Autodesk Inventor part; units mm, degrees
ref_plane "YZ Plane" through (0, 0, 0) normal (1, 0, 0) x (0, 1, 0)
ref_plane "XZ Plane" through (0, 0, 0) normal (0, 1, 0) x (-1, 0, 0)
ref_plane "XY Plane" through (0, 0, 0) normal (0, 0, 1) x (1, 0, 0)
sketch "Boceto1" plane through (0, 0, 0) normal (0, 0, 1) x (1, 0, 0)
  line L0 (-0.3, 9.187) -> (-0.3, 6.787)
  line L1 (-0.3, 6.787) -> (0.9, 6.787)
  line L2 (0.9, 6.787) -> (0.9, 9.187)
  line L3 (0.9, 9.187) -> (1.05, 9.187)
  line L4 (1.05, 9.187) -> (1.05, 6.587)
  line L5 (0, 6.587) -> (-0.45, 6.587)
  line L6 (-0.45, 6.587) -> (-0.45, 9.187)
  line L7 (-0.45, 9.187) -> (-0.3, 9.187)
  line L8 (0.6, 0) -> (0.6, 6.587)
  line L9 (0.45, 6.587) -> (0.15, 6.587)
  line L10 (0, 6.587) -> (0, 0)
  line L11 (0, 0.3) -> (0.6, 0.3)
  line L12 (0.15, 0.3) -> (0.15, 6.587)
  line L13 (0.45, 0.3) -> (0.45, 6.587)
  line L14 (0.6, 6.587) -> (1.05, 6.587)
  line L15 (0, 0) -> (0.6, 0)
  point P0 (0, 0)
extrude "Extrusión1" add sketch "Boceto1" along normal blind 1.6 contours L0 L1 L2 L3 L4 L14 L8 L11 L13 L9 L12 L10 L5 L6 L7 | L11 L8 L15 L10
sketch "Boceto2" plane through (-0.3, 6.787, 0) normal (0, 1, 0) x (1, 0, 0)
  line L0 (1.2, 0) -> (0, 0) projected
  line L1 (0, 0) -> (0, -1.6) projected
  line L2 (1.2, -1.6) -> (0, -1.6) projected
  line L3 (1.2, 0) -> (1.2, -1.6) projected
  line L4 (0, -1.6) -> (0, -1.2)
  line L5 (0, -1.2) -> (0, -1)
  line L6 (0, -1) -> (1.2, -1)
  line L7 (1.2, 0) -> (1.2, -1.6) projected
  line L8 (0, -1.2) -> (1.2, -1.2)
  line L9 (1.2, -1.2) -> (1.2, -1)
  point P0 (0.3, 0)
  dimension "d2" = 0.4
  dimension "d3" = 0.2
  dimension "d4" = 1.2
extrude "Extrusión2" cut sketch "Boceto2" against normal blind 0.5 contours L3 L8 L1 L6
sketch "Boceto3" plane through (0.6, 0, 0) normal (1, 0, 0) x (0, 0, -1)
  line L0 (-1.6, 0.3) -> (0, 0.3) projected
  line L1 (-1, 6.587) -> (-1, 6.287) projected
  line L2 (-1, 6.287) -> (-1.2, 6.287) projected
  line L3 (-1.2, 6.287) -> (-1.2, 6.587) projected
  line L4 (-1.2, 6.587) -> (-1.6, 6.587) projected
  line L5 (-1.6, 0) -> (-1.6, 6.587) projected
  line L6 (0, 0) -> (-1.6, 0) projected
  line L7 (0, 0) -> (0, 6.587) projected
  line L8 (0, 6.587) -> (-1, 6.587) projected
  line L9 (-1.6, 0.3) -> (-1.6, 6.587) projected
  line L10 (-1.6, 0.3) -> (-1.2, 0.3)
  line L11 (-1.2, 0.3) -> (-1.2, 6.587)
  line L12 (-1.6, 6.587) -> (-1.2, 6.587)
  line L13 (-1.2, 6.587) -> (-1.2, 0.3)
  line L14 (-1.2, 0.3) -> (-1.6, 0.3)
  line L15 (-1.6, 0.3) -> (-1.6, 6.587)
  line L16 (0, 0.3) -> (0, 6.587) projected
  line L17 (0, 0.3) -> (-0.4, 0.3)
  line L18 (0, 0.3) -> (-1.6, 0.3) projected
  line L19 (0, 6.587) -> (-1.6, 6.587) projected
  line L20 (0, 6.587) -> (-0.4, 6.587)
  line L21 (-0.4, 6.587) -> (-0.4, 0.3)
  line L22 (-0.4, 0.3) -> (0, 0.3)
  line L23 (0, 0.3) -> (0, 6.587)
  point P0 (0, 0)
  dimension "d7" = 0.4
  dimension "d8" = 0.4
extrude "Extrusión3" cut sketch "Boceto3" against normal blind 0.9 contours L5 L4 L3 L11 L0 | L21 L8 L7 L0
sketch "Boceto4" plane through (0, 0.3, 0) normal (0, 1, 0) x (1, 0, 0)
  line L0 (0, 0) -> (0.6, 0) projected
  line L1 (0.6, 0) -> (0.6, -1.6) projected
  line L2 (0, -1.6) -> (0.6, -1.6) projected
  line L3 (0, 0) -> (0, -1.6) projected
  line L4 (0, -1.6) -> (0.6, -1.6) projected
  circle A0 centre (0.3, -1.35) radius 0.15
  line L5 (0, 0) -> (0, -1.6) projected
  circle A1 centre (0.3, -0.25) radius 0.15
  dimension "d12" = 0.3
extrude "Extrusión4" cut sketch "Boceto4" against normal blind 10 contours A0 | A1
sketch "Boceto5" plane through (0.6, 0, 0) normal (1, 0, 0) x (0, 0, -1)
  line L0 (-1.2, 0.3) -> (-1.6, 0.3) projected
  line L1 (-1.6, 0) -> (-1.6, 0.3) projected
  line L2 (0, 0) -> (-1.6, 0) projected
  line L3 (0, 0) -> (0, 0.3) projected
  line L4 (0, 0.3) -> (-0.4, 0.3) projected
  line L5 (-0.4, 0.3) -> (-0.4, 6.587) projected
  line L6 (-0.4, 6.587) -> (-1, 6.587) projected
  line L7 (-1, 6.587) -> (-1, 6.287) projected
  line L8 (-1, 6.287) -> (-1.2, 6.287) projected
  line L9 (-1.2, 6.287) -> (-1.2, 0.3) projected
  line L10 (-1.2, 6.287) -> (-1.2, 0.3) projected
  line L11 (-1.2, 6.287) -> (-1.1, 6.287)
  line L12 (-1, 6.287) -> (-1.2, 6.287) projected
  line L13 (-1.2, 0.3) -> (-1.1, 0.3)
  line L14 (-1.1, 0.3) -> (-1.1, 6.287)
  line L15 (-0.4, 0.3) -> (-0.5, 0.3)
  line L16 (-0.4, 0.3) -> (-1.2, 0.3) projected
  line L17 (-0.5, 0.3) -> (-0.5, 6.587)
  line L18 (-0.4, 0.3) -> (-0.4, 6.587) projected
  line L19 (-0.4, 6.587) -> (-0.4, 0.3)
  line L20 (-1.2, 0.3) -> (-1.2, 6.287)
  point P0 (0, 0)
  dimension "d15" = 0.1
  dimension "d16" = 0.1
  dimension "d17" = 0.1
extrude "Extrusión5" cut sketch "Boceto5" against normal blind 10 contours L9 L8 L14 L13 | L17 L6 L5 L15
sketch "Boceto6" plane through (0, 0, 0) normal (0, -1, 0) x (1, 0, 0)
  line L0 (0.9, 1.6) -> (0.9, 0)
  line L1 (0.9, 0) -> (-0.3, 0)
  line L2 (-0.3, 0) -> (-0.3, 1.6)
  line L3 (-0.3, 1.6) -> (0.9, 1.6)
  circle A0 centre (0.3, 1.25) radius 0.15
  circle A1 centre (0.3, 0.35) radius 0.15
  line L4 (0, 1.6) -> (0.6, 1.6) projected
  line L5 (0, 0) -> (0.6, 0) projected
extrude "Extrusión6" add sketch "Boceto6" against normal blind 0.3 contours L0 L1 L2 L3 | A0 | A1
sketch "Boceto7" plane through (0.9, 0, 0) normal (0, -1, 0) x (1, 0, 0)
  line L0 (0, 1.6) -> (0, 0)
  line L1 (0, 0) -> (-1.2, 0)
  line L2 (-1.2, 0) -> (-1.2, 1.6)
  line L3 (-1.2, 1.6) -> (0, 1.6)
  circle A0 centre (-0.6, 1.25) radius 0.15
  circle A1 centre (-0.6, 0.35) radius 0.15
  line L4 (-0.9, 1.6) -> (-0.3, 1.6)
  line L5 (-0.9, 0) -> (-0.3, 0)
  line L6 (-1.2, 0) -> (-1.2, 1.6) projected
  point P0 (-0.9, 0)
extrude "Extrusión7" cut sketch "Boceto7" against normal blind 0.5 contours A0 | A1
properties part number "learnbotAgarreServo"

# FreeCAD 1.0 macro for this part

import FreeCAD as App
import Part
import Sketcher
from FreeCAD import Vector


def add_polygon(sketch, points):
    """Adds a closed chain of lines whose ends are joined by coincident constraints."""
    first, n = sketch.GeometryCount, len(points)
    for a, b in zip(points, points[1:] + points[:1]):
        sketch.addGeometry(Part.LineSegment(App.Vector(*a, 0), App.Vector(*b, 0)), False)
    for i in range(n):
        sketch.addConstraint(Sketcher.Constraint("Coincident", first + i, 2, first + (i + 1) % n, 1))

doc = App.newDocument("Part")
params = doc.addObject("Spreadsheet::Sheet", "Params")
for row, (alias, value) in enumerate([
    ("sketch1_width", "0.6 mm"),
    ("sketch1_width2", "1.2 mm"),
    ("sketch1_width3", "0.3 mm"),
    ("sketch1_height", "2.4 mm"),
    ("sketch1_height2", "2.6 mm"),
    ("pad1_length", "1.6 mm"),
    ("sketch2_width", "1.2 mm"),
    ("sketch2_height", "0.2 mm"),
    ("pocket1_length", "0.5 mm"),
    ("sketch3_height", "0.4 mm"),
    ("pocket2_length", "0.9 mm"),
    ("sketch4_diameter", "0.3 mm"),
    ("pocket3_length", "10 mm"),
    ("sketch5_height", "0.1 mm"),
    ("pocket4_length", "10 mm"),
    ("sketch6_width", "1.2 mm"),
    ("sketch6_height", "1.6 mm"),
    ("pad2_length", "0.3 mm"),
    ("sketch7_diameter", "0.3 mm"),
    ("pocket5_length", "0.5 mm"),
], start=1):
    params.set(f"A{row}", alias)
    params.set(f"B{row}", "=" + value)
    params.setAlias(f"B{row}", alias)

body = doc.addObject("PartDesign::Body", "Body")

# Sketch on XY plane
sketch1 = body.newObject("Sketcher::SketchObject", "Sketch")
sketch1.AttachmentSupport = (doc.getObject("XY_Plane"), [""])
sketch1.MapMode = "FlatFace"
add_polygon(sketch1, [(-0.3, 6.787), (-0.3, 9.187), (-0.45, 9.187), (-0.45, 6.587), (0, 6.587), (0, 0), (0.6, 0), (0.6, 6.587), (1.05, 6.587), (1.05, 9.187), (0.9, 9.187), (0.9, 6.787)])  # lines 0-11
add_polygon(sketch1, [(0.45, 6.587), (0.45, 0.3), (0.15, 0.3), (0.15, 6.587)])  # lines 12-15
sketch1.addConstraint(Sketcher.Constraint("Vertical", 0))
sketch1.addConstraint(Sketcher.Constraint("Horizontal", 1))
sketch1.addConstraint(Sketcher.Constraint("Vertical", 2))
sketch1.addConstraint(Sketcher.Constraint("Horizontal", 3))
sketch1.addConstraint(Sketcher.Constraint("Vertical", 4))
sketch1.addConstraint(Sketcher.Constraint("Horizontal", 5))
sketch1.addConstraint(Sketcher.Constraint("Vertical", 6))
sketch1.addConstraint(Sketcher.Constraint("Horizontal", 7))
sketch1.addConstraint(Sketcher.Constraint("Vertical", 8))
sketch1.addConstraint(Sketcher.Constraint("Horizontal", 9))
sketch1.addConstraint(Sketcher.Constraint("Vertical", 10))
sketch1.addConstraint(Sketcher.Constraint("Horizontal", 11))
sketch1.addConstraint(Sketcher.Constraint("Vertical", 12))
sketch1.addConstraint(Sketcher.Constraint("Horizontal", 13))
sketch1.addConstraint(Sketcher.Constraint("Vertical", 14))
sketch1.addConstraint(Sketcher.Constraint("Horizontal", 15))
sketch1.addConstraint(Sketcher.Constraint("Coincident", 4, 2, -1, 1))
sketch1.addConstraint(Sketcher.Constraint("Symmetric", 2, 2, 15, 2, -2))
sketch1.addConstraint(Sketcher.Constraint("Horizontal", 3, 2, 6, 2))
sketch1.addConstraint(Sketcher.Constraint("Horizontal", 1, 2, 8, 2))
sketch1.addConstraint(Sketcher.Constraint("Equal", 3, 7))
sketch1.addConstraint(Sketcher.Constraint("Equal", 1, 9))
sketch1.addConstraint(Sketcher.Constraint("DistanceX", 5, 1, 5, 2, 0.6))
sketch1.addConstraint(Sketcher.Constraint("DistanceX", 11, 2, 11, 1, 1.2))
sketch1.addConstraint(Sketcher.Constraint("DistanceX", 13, 2, 13, 1, 0.3))
sketch1.addConstraint(Sketcher.Constraint("DistanceY", 0, 1, 0, 2, 2.4))
sketch1.addConstraint(Sketcher.Constraint("DistanceY", 2, 2, 2, 1, 2.6))
sketch1.addConstraint(Sketcher.Constraint("DistanceX", 1, 2, 1, 1, 0.15))
sketch1.addConstraint(Sketcher.Constraint("DistanceY", -1, 1, 12, 2, 0.3))
sketch1.addConstraint(Sketcher.Constraint("DistanceY", 4, 2, 4, 1, 6.587))
sketch1.setExpression("Constraints[38]", "Params.sketch1_width")
sketch1.setExpression("Constraints[39]", "Params.sketch1_width2")
sketch1.setExpression("Constraints[40]", "Params.sketch1_width3")
sketch1.setExpression("Constraints[41]", "Params.sketch1_height")
sketch1.setExpression("Constraints[42]", "Params.sketch1_height2")
pad1 = body.newObject("PartDesign::Pad", "Pad")
pad1.Profile = sketch1
pad1.setExpression("Length", "Params.pad1_length")

# Sketch on XZ plane
sketch2 = body.newObject("Sketcher::SketchObject", "Sketch001")
sketch2.AttachmentSupport = (doc.getObject("XZ_Plane"), [""])
sketch2.MapMode = "FlatFace"
sketch2.AttachmentOffset = App.Placement(Vector(0, 0, -6.787), App.Rotation())
add_polygon(sketch2, [(0.9, 1.2), (0.9, 1), (-0.3, 1), (-0.3, 1.2)])  # lines 0-3
sketch2.addConstraint(Sketcher.Constraint("Vertical", 0))
sketch2.addConstraint(Sketcher.Constraint("Horizontal", 1))
sketch2.addConstraint(Sketcher.Constraint("Vertical", 2))
sketch2.addConstraint(Sketcher.Constraint("Horizontal", 3))
sketch2.addConstraint(Sketcher.Constraint("DistanceX", 1, 2, 1, 1, 1.2))
sketch2.addConstraint(Sketcher.Constraint("DistanceY", 0, 2, 0, 1, 0.2))
sketch2.addConstraint(Sketcher.Constraint("DistanceY", -1, 1, 2, 2, 1.2))
sketch2.addConstraint(Sketcher.Constraint("DistanceX", -1, 1, 0, 2, 0.9))
sketch2.setExpression("Constraints[8]", "Params.sketch2_width")
sketch2.setExpression("Constraints[9]", "Params.sketch2_height")
pocket1 = body.newObject("PartDesign::Pocket", "Pocket")
pocket1.Profile = sketch2
pocket1.setExpression("Length", "Params.pocket1_length")
pocket1.Reversed = True

# Sketch on YZ plane
sketch3 = body.newObject("Sketcher::SketchObject", "Sketch002")
sketch3.AttachmentSupport = (doc.getObject("YZ_Plane"), [""])
sketch3.MapMode = "FlatFace"
sketch3.AttachmentOffset = App.Placement(Vector(0, 0, 0.6), App.Rotation())
add_polygon(sketch3, [(6.587, 1.6), (0.3, 1.6), (0.3, 1.2), (6.587, 1.2)])  # lines 0-3
add_polygon(sketch3, [(6.587, 0.4), (0.3, 0.4), (0.3, 0), (6.587, 0)])  # lines 4-7
sketch3.addConstraint(Sketcher.Constraint("Horizontal", 0))
sketch3.addConstraint(Sketcher.Constraint("Vertical", 1))
sketch3.addConstraint(Sketcher.Constraint("Horizontal", 2))
sketch3.addConstraint(Sketcher.Constraint("Vertical", 3))
sketch3.addConstraint(Sketcher.Constraint("Horizontal", 4))
sketch3.addConstraint(Sketcher.Constraint("Vertical", 5))
sketch3.addConstraint(Sketcher.Constraint("Horizontal", 6))
sketch3.addConstraint(Sketcher.Constraint("Vertical", 7))
sketch3.addConstraint(Sketcher.Constraint("PointOnObject", 5, 2, -1))
sketch3.addConstraint(Sketcher.Constraint("Vertical", 1, 2, 4, 2))
sketch3.addConstraint(Sketcher.Constraint("Vertical", 3, 2, 6, 2))
sketch3.addConstraint(Sketcher.Constraint("Equal", 3, 5))
sketch3.addConstraint(Sketcher.Constraint("DistanceY", 1, 2, 1, 1, 0.4))
sketch3.addConstraint(Sketcher.Constraint("DistanceX", -1, 1, 0, 2, 0.3))
sketch3.addConstraint(Sketcher.Constraint("DistanceY", -1, 1, 0, 2, 1.6))
sketch3.addConstraint(Sketcher.Constraint("DistanceX", 0, 2, 0, 1, 6.287))
sketch3.setExpression("Constraints[20]", "Params.sketch3_height")
pocket2 = body.newObject("PartDesign::Pocket", "Pocket001")
pocket2.Profile = sketch3
pocket2.setExpression("Length", "Params.pocket2_length")

# Sketch on XZ plane
sketch4 = body.newObject("Sketcher::SketchObject", "Sketch003")
sketch4.AttachmentSupport = (doc.getObject("XZ_Plane"), [""])
sketch4.MapMode = "FlatFace"
sketch4.AttachmentOffset = App.Placement(Vector(0, 0, -0.3), App.Rotation())
sketch4.addGeometry(Part.Circle(Vector(0.3, 1.35, 0), Vector(0, 0, 1), 0.15), False)
sketch4.addGeometry(Part.Circle(Vector(0.3, 0.25, 0), Vector(0, 0, 1), 0.15), False)
sketch4.addConstraint(Sketcher.Constraint("Equal", 0, 1))
sketch4.addConstraint(Sketcher.Constraint("Vertical", 0, 3, 1, 3))
sketch4.addConstraint(Sketcher.Constraint("Diameter", 0, 0.3))
sketch4.addConstraint(Sketcher.Constraint("DistanceX", -1, 1, 0, 3, 0.3))
sketch4.addConstraint(Sketcher.Constraint("DistanceY", 1, 3, 0, 3, 1.1))
sketch4.addConstraint(Sketcher.Constraint("DistanceY", -1, 1, 0, 3, 1.35))
sketch4.setExpression("Constraints[2]", "Params.sketch4_diameter")
pocket3 = body.newObject("PartDesign::Pocket", "Pocket002")
pocket3.Profile = sketch4
pocket3.setExpression("Length", "Params.pocket3_length")
pocket3.Reversed = True

# Sketch on YZ plane
sketch5 = body.newObject("Sketcher::SketchObject", "Sketch004")
sketch5.AttachmentSupport = (doc.getObject("YZ_Plane"), [""])
sketch5.MapMode = "FlatFace"
sketch5.AttachmentOffset = App.Placement(Vector(0, 0, 0.6), App.Rotation())
add_polygon(sketch5, [(6.287, 1.2), (0.3, 1.2), (0.3, 1.1), (6.287, 1.1)])  # lines 0-3
add_polygon(sketch5, [(6.587, 0.5), (0.3, 0.5), (0.3, 0.4), (6.587, 0.4)])  # lines 4-7
sketch5.addConstraint(Sketcher.Constraint("Horizontal", 0))
sketch5.addConstraint(Sketcher.Constraint("Vertical", 1))
sketch5.addConstraint(Sketcher.Constraint("Horizontal", 2))
sketch5.addConstraint(Sketcher.Constraint("Vertical", 3))
sketch5.addConstraint(Sketcher.Constraint("Horizontal", 4))
sketch5.addConstraint(Sketcher.Constraint("Vertical", 5))
sketch5.addConstraint(Sketcher.Constraint("Horizontal", 6))
sketch5.addConstraint(Sketcher.Constraint("Vertical", 7))
sketch5.addConstraint(Sketcher.Constraint("Vertical", 1, 2, 4, 2))
sketch5.addConstraint(Sketcher.Constraint("Equal", 3, 5))
sketch5.addConstraint(Sketcher.Constraint("DistanceY", 1, 2, 1, 1, 0.1))
sketch5.addConstraint(Sketcher.Constraint("DistanceX", -1, 1, 0, 2, 0.3))
sketch5.addConstraint(Sketcher.Constraint("DistanceY", -1, 1, 0, 2, 1.2))
sketch5.addConstraint(Sketcher.Constraint("DistanceY", -1, 1, 4, 2, 0.5))
sketch5.addConstraint(Sketcher.Constraint("DistanceX", 2, 2, 6, 2, 0.3))
sketch5.addConstraint(Sketcher.Constraint("DistanceX", 0, 2, 0, 1, 5.987))
sketch5.setExpression("Constraints[18]", "Params.sketch5_height")
pocket4 = body.newObject("PartDesign::Pocket", "Pocket003")
pocket4.Profile = sketch5
pocket4.setExpression("Length", "Params.pocket4_length")

# Sketch on XZ plane
sketch6 = body.newObject("Sketcher::SketchObject", "Sketch005")
sketch6.AttachmentSupport = (doc.getObject("XZ_Plane"), [""])
sketch6.MapMode = "FlatFace"
add_polygon(sketch6, [(0.9, 0), (0.9, 1.6), (-0.3, 1.6), (-0.3, 0)])  # lines 0-3
sketch6.addConstraint(Sketcher.Constraint("Vertical", 0))
sketch6.addConstraint(Sketcher.Constraint("Horizontal", 1))
sketch6.addConstraint(Sketcher.Constraint("Vertical", 2))
sketch6.addConstraint(Sketcher.Constraint("Horizontal", 3))
sketch6.addConstraint(Sketcher.Constraint("PointOnObject", 2, 2, -1))
sketch6.addConstraint(Sketcher.Constraint("DistanceX", 1, 2, 1, 1, 1.2))
sketch6.addConstraint(Sketcher.Constraint("DistanceY", 0, 1, 0, 2, 1.6))
sketch6.addConstraint(Sketcher.Constraint("DistanceX", -1, 1, 0, 2, 0.9))
sketch6.setExpression("Constraints[9]", "Params.sketch6_width")
sketch6.setExpression("Constraints[10]", "Params.sketch6_height")
pad2 = body.newObject("PartDesign::Pad", "Pad001")
pad2.Profile = sketch6
pad2.setExpression("Length", "Params.pad2_length")
pad2.Reversed = True

# Sketch on XZ plane
sketch7 = body.newObject("Sketcher::SketchObject", "Sketch006")
sketch7.AttachmentSupport = (doc.getObject("XZ_Plane"), [""])
sketch7.MapMode = "FlatFace"
sketch7.addGeometry(Part.Circle(Vector(0.3, 1.25, 0), Vector(0, 0, 1), 0.15), False)
sketch7.addGeometry(Part.Circle(Vector(0.3, 0.35, 0), Vector(0, 0, 1), 0.15), False)
sketch7.addConstraint(Sketcher.Constraint("Equal", 0, 1))
sketch7.addConstraint(Sketcher.Constraint("Vertical", 0, 3, 1, 3))
sketch7.addConstraint(Sketcher.Constraint("Diameter", 0, 0.3))
sketch7.addConstraint(Sketcher.Constraint("DistanceX", -1, 1, 0, 3, 0.3))
sketch7.addConstraint(Sketcher.Constraint("DistanceY", 1, 3, 0, 3, 0.9))
sketch7.addConstraint(Sketcher.Constraint("DistanceY", -1, 1, 0, 3, 1.25))
sketch7.setExpression("Constraints[2]", "Params.sketch7_diameter")
pocket5 = body.newObject("PartDesign::Pocket", "Pocket004")
pocket5.Profile = sketch7
pocket5.setExpression("Length", "Params.pocket5_length")

doc.recompute()
